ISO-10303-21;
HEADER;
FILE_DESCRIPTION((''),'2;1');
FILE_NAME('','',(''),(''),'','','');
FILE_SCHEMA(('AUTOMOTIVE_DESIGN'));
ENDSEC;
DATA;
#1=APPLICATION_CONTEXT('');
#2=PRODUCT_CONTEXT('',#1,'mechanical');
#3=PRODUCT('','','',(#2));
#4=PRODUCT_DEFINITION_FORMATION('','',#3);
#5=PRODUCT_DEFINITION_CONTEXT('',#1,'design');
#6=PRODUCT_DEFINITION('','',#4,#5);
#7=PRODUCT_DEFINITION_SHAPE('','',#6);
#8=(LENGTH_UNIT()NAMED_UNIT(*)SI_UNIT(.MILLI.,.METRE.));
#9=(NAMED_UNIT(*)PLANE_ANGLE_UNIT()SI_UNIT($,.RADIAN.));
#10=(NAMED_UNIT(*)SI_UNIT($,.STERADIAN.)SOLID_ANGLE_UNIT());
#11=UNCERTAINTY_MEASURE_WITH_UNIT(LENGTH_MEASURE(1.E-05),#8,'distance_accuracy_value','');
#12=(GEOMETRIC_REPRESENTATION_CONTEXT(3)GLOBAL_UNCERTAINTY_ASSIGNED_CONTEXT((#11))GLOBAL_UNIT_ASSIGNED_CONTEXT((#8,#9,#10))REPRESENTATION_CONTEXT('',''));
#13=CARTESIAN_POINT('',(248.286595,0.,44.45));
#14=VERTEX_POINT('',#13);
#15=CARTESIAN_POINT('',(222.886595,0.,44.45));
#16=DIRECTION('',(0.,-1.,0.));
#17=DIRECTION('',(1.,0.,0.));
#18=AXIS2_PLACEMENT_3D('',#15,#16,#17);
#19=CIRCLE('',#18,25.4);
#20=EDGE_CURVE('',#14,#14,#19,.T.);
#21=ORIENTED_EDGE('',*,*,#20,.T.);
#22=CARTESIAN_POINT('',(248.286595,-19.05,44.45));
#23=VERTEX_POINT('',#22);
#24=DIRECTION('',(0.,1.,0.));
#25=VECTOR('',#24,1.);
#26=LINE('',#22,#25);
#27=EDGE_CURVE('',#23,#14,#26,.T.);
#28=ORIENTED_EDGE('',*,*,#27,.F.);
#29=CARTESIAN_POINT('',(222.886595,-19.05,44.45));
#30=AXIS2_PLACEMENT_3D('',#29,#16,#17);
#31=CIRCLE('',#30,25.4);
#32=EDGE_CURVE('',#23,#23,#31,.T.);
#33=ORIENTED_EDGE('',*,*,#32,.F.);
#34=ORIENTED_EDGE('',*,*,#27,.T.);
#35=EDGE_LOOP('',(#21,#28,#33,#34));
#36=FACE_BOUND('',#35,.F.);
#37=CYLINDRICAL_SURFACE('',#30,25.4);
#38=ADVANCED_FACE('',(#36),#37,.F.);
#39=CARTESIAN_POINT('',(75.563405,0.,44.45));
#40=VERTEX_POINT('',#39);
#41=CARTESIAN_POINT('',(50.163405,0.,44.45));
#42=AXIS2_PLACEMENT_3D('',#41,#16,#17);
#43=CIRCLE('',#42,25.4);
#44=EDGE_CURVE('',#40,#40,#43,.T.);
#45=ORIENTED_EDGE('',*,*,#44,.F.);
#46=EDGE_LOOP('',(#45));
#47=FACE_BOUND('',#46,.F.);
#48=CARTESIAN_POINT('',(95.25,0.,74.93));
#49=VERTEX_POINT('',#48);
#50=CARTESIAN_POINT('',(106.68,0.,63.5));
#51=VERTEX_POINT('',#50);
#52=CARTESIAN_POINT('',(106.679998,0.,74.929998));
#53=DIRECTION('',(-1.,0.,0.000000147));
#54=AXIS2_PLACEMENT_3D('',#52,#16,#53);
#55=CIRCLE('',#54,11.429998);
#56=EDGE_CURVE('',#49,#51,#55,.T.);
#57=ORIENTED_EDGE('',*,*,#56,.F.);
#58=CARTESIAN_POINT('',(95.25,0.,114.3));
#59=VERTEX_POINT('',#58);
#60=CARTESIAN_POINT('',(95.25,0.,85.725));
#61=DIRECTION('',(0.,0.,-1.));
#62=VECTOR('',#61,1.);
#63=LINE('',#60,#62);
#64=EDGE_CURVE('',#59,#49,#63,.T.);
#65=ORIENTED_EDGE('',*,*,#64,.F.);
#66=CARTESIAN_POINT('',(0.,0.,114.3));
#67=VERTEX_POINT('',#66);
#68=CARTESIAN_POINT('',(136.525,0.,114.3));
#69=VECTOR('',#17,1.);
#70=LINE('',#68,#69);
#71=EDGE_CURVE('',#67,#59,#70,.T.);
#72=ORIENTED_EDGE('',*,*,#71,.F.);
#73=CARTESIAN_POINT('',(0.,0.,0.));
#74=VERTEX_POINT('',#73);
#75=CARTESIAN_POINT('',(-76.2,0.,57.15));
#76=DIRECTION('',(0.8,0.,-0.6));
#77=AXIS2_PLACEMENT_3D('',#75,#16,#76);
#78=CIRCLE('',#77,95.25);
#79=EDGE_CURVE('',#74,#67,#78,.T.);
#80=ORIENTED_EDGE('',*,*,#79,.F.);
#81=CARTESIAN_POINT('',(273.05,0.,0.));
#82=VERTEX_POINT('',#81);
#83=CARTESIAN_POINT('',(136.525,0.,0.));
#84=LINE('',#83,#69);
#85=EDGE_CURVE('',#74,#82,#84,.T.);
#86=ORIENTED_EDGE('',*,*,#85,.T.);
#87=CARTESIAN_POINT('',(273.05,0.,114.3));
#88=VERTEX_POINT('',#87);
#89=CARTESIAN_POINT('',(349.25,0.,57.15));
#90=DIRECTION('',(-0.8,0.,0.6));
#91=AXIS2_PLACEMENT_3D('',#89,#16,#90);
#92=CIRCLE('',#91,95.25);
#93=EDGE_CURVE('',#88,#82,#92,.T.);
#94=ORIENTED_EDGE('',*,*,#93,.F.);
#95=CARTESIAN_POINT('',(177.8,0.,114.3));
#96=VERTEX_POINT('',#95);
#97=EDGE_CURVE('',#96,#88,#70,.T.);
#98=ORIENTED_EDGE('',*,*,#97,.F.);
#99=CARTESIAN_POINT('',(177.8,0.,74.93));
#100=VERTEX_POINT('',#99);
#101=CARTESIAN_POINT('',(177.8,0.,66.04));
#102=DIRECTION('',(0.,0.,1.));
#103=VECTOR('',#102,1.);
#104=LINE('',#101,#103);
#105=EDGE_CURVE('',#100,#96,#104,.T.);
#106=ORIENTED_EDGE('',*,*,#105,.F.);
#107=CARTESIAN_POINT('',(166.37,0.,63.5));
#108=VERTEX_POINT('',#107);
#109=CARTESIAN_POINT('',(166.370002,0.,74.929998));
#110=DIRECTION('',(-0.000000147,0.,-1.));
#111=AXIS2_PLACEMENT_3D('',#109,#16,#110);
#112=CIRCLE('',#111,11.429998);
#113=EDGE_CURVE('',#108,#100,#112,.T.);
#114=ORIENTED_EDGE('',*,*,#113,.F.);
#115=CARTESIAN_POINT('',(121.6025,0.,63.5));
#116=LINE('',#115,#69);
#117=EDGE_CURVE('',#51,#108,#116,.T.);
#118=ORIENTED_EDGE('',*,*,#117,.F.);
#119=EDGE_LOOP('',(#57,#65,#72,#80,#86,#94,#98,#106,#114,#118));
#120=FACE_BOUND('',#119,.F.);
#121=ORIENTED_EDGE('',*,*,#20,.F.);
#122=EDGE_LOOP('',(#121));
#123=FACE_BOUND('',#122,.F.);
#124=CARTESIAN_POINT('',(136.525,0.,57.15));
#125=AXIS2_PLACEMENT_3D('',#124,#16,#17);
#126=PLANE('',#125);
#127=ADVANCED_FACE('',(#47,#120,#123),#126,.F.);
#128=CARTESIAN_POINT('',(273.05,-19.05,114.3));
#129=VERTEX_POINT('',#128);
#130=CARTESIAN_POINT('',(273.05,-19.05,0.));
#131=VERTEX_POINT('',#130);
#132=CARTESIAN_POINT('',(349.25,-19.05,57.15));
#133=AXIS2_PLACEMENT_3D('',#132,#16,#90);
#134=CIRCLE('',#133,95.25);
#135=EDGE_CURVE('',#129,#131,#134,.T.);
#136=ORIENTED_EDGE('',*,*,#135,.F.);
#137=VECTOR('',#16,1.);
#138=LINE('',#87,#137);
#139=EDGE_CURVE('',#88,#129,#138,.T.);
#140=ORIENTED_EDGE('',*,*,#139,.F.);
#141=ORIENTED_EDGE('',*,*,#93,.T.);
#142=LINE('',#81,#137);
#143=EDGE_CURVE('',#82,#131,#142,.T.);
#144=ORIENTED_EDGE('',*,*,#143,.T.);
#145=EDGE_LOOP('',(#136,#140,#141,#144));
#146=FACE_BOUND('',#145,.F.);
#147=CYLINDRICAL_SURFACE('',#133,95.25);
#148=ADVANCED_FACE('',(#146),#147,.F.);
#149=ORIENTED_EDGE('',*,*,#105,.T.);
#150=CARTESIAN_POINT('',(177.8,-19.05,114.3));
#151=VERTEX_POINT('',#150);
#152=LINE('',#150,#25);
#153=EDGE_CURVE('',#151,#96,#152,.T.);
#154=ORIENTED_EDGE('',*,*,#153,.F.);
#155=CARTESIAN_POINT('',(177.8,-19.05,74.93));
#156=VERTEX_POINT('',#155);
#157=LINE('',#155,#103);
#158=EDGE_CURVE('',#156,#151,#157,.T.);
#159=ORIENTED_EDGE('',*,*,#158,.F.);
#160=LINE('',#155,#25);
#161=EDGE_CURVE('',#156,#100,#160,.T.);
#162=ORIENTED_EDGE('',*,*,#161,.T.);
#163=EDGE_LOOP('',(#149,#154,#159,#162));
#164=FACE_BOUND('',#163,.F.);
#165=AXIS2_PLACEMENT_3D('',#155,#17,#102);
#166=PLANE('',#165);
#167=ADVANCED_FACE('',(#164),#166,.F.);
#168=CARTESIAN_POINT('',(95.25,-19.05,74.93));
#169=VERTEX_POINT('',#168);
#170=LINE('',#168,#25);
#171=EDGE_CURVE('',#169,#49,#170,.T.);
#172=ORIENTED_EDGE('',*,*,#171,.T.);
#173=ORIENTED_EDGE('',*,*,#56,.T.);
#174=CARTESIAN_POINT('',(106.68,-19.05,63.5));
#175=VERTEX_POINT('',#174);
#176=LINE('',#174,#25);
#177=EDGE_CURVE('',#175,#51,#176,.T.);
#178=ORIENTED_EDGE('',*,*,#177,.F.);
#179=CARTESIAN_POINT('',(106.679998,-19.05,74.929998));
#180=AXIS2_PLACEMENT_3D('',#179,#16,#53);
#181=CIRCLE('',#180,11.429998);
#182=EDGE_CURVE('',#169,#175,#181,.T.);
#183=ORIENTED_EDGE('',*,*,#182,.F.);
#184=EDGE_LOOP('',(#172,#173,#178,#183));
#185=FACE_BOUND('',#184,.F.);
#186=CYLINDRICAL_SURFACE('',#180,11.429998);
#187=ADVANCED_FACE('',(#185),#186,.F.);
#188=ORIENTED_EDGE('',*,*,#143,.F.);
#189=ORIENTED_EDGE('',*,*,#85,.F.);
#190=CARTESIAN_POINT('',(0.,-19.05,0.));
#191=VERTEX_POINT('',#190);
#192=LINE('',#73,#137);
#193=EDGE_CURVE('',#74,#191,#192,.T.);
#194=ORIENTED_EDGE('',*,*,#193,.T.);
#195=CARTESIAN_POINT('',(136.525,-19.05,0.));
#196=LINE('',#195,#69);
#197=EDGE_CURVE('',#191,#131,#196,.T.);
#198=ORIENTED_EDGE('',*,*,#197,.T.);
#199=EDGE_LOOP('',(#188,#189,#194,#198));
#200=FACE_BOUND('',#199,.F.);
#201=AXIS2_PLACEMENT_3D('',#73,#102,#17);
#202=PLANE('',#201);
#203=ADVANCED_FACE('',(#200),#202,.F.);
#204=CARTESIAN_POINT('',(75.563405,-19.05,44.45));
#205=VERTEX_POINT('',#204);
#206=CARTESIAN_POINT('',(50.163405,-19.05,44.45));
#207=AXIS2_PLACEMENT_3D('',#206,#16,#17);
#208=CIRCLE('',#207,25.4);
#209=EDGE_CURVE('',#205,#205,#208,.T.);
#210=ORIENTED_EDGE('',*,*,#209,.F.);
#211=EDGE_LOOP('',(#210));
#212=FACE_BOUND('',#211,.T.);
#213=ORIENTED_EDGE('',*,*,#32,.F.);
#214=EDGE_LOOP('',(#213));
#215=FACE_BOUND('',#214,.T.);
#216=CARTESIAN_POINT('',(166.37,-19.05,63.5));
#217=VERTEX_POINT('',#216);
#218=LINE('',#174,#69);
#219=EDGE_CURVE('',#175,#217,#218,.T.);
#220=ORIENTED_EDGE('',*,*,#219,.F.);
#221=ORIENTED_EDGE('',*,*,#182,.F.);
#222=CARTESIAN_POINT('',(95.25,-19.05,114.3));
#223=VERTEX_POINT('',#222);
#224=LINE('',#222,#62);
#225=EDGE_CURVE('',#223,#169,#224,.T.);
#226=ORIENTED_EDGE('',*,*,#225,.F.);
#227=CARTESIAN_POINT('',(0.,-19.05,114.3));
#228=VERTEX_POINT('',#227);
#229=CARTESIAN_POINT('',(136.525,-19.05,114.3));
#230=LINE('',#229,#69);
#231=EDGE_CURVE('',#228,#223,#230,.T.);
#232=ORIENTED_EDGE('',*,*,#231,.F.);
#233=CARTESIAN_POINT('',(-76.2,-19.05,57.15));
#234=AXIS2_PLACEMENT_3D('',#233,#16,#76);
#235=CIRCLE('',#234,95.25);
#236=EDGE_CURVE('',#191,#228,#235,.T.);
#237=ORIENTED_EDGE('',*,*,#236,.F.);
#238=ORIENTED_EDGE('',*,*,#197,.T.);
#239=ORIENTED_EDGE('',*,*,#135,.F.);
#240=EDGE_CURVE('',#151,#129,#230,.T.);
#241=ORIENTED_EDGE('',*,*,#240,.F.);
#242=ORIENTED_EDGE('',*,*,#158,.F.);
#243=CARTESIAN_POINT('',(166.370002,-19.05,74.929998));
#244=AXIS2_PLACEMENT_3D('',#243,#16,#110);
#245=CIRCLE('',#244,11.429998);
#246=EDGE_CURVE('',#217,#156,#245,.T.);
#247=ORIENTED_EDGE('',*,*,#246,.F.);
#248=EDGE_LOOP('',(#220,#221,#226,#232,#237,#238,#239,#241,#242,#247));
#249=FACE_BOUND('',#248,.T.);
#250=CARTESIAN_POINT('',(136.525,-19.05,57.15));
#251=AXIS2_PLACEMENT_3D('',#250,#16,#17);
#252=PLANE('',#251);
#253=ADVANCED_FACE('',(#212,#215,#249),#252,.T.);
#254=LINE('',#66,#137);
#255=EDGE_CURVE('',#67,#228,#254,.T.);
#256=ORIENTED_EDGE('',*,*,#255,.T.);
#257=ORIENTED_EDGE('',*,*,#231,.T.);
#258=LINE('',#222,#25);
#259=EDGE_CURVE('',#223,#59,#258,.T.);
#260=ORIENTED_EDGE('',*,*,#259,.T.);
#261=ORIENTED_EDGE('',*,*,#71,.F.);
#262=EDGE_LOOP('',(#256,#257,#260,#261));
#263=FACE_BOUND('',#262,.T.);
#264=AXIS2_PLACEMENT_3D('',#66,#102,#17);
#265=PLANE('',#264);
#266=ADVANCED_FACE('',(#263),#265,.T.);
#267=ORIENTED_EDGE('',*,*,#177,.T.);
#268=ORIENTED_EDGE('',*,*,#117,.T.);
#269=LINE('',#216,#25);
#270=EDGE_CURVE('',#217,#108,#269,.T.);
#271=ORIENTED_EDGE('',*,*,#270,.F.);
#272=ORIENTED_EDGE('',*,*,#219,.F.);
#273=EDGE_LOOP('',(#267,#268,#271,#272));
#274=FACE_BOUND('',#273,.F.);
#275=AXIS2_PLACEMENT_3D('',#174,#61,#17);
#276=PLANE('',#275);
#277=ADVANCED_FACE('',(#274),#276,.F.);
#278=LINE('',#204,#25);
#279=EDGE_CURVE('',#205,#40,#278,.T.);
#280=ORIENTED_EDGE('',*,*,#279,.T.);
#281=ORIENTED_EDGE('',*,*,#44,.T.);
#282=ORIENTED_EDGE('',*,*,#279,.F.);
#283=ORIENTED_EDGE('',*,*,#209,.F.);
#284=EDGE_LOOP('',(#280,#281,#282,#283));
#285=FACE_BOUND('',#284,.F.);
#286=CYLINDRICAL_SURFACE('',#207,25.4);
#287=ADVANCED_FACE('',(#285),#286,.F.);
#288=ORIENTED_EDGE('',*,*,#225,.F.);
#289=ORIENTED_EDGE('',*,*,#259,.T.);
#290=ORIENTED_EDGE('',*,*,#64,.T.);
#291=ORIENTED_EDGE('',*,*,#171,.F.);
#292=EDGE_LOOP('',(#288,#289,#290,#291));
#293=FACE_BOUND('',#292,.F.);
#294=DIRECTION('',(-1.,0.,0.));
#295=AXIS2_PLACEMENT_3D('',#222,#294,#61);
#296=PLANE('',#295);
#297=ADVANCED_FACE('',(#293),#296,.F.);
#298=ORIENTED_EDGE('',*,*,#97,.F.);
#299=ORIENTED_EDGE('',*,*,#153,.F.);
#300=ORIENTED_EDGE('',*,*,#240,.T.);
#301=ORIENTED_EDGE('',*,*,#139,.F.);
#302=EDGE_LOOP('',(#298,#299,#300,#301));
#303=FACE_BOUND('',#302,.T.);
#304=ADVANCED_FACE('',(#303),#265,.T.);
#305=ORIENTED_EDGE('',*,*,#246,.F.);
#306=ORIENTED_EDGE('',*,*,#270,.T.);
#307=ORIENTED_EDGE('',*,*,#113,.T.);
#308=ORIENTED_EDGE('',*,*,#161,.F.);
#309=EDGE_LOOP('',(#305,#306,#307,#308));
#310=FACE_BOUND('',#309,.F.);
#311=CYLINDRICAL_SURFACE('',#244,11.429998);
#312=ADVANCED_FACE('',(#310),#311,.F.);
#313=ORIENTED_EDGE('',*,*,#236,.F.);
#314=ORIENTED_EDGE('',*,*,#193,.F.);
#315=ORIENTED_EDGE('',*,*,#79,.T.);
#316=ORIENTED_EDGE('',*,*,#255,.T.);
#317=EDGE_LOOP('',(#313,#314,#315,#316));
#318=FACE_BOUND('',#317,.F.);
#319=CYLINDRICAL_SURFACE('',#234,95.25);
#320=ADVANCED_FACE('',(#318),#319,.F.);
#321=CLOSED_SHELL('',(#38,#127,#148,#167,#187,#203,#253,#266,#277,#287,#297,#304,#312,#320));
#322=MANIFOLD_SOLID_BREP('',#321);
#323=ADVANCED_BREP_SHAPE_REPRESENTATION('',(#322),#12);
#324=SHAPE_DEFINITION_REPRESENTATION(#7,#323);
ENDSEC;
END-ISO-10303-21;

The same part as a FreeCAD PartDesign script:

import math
import FreeCAD as App
import Part
import Sketcher
from FreeCAD import Vector
Q = App.Units.Quantity

doc = App.newDocument("Part")
params = doc.addObject("Spreadsheet::Sheet", "Params")
for row, (alias, value) in enumerate([
    ("sketch1_height", "4.5 in"),
    ("sketch1_width", "10.75 in"),
    ("pad1_length", "0.75 in"),
    ("sketch2_radius", "3.75 in"),
    ("sketch2_height", "4.5 in"),
    ("pocket1_length", "1 in"),
    ("sketch3_diameter", "2 in"),
    ("sketch3_radius", "0.4499999 in"),
    ("sketch3_width", "3.25 in"),
    ("pocket2_length", "1 in"),
], start=1):
    params.set(f"A{row}", alias)
    params.set(f"B{row}", "=" + value)
    params.setAlias(f"B{row}", alias)

body = doc.addObject("PartDesign::Body", "Body")

# Sketch on XZ plane
sketch1 = body.newObject("Sketcher::SketchObject", "Sketch")
sketch1.AttachmentSupport = (doc.getObject("XZ_Plane"), [""])
sketch1.MapMode = "FlatFace"
sketch1.addGeometry([
    Part.LineSegment(Vector(0, 114.3, 0), Vector(0, 0, 0)),
    Part.LineSegment(Vector(0, 0, 0), Vector(273.05, 0, 0)),
    Part.LineSegment(Vector(273.05, 0, 0), Vector(273.05, 114.3, 0)),
    Part.LineSegment(Vector(273.05, 114.3, 0), Vector(0, 114.3, 0)),
], False)
sketch1.addConstraint([
    Sketcher.Constraint("Coincident", 0, 2, 1, 1),
    Sketcher.Constraint("Coincident", 1, 2, 2, 1),
    Sketcher.Constraint("Coincident", 2, 2, 3, 1),
    Sketcher.Constraint("Coincident", 3, 2, 0, 1),
    Sketcher.Constraint("Vertical", 0),
    Sketcher.Constraint("Horizontal", 1),
    Sketcher.Constraint("Vertical", 2),
    Sketcher.Constraint("Horizontal", 3),
    Sketcher.Constraint("Coincident", 0, 2, -1, 1),
    Sketcher.Constraint("DistanceY", 0, 2, 0, 1, Q("4.5 in")),
    Sketcher.Constraint("DistanceX", 1, 1, 1, 2, Q("10.75 in")),
])
sketch1.setExpression("Constraints[9]", "Params.sketch1_height")
sketch1.setExpression("Constraints[10]", "Params.sketch1_width")
pad1 = body.newObject("PartDesign::Pad", "Pad")
pad1.Profile = sketch1
pad1.setExpression("Length", "Params.pad1_length")

# Sketch on XZ plane
sketch2 = body.newObject("Sketcher::SketchObject", "Sketch001")
sketch2.AttachmentSupport = (doc.getObject("XZ_Plane"), [""])
sketch2.MapMode = "FlatFace"
sketch2.AttachmentOffset = App.Placement(Vector(0, 0, 0.75 * 25.4), App.Rotation())
sketch2.addGeometry([
    Part.LineSegment(Vector(0, 114.3, 0), Vector(0, 0, 0)),
    Part.ArcOfCircle(Part.Circle(Vector(-76.2, 57.15, 0), Vector(0, 0, 1), 95.25), math.radians(-36.869898), math.radians(36.869898)),
    Part.ArcOfCircle(Part.Circle(Vector(349.25, 57.15, 0), Vector(0, 0, 1), 95.25), math.radians(143.130102), math.radians(216.869898)),
    Part.LineSegment(Vector(273.05, 0, 0), Vector(273.05, 114.3, 0)),
], False)
sketch2.addConstraint([
    Sketcher.Constraint("Coincident", 0, 1, 1, 2),
    Sketcher.Constraint("Coincident", 1, 1, 0, 2),
    Sketcher.Constraint("Coincident", 2, 1, 3, 2),
    Sketcher.Constraint("Coincident", 3, 1, 2, 2),
    Sketcher.Constraint("Vertical", 0),
    Sketcher.Constraint("Vertical", 3),
    Sketcher.Constraint("Coincident", 1, 1, -1, 1),
    Sketcher.Constraint("Equal", 1, 2),
    Sketcher.Constraint("PointOnObject", 3, 1, -1),
    Sketcher.Constraint("Horizontal", 1, 3, 2, 3),
    Sketcher.Constraint("Radius", 1, Q("3.75 in")),
    Sketcher.Constraint("DistanceY", 0, 2, 0, 1, Q("4.5 in")),
    Sketcher.Constraint("DistanceX", -1, 1, 2, 3, Q("13.75 in")),
])
sketch2.setExpression("Constraints[10]", "Params.sketch2_radius")
sketch2.setExpression("Constraints[11]", "Params.sketch2_height")
pocket1 = body.newObject("PartDesign::Pocket", "Pocket")
pocket1.Profile = sketch2
pocket1.setExpression("Length", "Params.pocket1_length")

# Sketch on XZ plane
sketch3 = body.newObject("Sketcher::SketchObject", "Sketch002")
sketch3.AttachmentSupport = (doc.getObject("XZ_Plane"), [""])
sketch3.MapMode = "FlatFace"
sketch3.AttachmentOffset = App.Placement(Vector(0, 0, 0.75 * 25.4), App.Rotation())
sketch3.addGeometry([
    Part.LineSegment(Vector(177.8, 114.3, 0), Vector(95.25, 114.3, 0)),  # 0
    Part.LineSegment(Vector(95.25, 114.3, 0), Vector(95.25, 74.93, 0)),  # 1
    Part.ArcOfCircle(Part.Circle(Vector(106.679998, 74.929998, 0), Vector(0, 0, 1), 11.429998), math.radians(179.999992), math.radians(270.000008)),  # 2
    Part.LineSegment(Vector(106.68, 63.5, 0), Vector(166.37, 63.5, 0)),  # 3
    Part.ArcOfCircle(Part.Circle(Vector(166.370002, 74.929998, 0), Vector(0, 0, 1), 11.429998), math.radians(-90.000008), math.radians(0.000008)),  # 4
    Part.LineSegment(Vector(177.8, 74.93, 0), Vector(177.8, 114.3, 0)),  # 5
    Part.Circle(Vector(50.163405, 44.45, 0), Vector(0, 0, 1), 25.4),  # 6
    Part.Circle(Vector(222.886595, 44.45, 0), Vector(0, 0, 1), 25.4),  # 7
], False)
sketch3.addConstraint([
    Sketcher.Constraint("Coincident", 0, 2, 1, 1),
    Sketcher.Constraint("Tangent", 1, 2, 2, 1),
    Sketcher.Constraint("Tangent", 2, 2, 3, 1),
    Sketcher.Constraint("Tangent", 3, 2, 4, 1),
    Sketcher.Constraint("Tangent", 4, 2, 5, 1),
    Sketcher.Constraint("Coincident", 5, 2, 0, 1),
    Sketcher.Constraint("Horizontal", 0),
    Sketcher.Constraint("Vertical", 1),
    Sketcher.Constraint("Horizontal", 3),
    Sketcher.Constraint("Vertical", 5),
    Sketcher.Constraint("Equal", 2, 4),
    Sketcher.Constraint("Equal", 6, 7),
    Sketcher.Constraint("Horizontal", 6, 3, 7, 3),
    Sketcher.Constraint("Diameter", 6, Q("2 in")),
    Sketcher.Constraint("Radius", 2, Q("0.4499999 in")),
    Sketcher.Constraint("DistanceX", -1, 1, 4, 2, Q("7 in")),
    Sketcher.Constraint("DistanceY", 2, 2, 0, 2, Q("2 in")),
    Sketcher.Constraint("DistanceX", 0, 2, 0, 1, Q("3.25 in")),
    Sketcher.Constraint("DistanceY", -1, 1, 0, 2, Q("4.5 in")),
    Sketcher.Constraint("DistanceY", 6, 3, 2, 3, Q("1.1999999 in")),
    Sketcher.Constraint("DistanceX", 6, 3, 7, 3, Q("172.72319 mm")),
    Sketcher.Constraint("DistanceX", -1, 1, 6, 3, Q("50.163405 mm")),
])
sketch3.setExpression("Constraints[13]", "Params.sketch3_diameter")
sketch3.setExpression("Constraints[14]", "Params.sketch3_radius")
sketch3.setExpression("Constraints[17]", "Params.sketch3_width")
pocket2 = body.newObject("PartDesign::Pocket", "Pocket001")
pocket2.Profile = sketch3
pocket2.setExpression("Length", "Params.pocket2_length")

doc.recompute()
